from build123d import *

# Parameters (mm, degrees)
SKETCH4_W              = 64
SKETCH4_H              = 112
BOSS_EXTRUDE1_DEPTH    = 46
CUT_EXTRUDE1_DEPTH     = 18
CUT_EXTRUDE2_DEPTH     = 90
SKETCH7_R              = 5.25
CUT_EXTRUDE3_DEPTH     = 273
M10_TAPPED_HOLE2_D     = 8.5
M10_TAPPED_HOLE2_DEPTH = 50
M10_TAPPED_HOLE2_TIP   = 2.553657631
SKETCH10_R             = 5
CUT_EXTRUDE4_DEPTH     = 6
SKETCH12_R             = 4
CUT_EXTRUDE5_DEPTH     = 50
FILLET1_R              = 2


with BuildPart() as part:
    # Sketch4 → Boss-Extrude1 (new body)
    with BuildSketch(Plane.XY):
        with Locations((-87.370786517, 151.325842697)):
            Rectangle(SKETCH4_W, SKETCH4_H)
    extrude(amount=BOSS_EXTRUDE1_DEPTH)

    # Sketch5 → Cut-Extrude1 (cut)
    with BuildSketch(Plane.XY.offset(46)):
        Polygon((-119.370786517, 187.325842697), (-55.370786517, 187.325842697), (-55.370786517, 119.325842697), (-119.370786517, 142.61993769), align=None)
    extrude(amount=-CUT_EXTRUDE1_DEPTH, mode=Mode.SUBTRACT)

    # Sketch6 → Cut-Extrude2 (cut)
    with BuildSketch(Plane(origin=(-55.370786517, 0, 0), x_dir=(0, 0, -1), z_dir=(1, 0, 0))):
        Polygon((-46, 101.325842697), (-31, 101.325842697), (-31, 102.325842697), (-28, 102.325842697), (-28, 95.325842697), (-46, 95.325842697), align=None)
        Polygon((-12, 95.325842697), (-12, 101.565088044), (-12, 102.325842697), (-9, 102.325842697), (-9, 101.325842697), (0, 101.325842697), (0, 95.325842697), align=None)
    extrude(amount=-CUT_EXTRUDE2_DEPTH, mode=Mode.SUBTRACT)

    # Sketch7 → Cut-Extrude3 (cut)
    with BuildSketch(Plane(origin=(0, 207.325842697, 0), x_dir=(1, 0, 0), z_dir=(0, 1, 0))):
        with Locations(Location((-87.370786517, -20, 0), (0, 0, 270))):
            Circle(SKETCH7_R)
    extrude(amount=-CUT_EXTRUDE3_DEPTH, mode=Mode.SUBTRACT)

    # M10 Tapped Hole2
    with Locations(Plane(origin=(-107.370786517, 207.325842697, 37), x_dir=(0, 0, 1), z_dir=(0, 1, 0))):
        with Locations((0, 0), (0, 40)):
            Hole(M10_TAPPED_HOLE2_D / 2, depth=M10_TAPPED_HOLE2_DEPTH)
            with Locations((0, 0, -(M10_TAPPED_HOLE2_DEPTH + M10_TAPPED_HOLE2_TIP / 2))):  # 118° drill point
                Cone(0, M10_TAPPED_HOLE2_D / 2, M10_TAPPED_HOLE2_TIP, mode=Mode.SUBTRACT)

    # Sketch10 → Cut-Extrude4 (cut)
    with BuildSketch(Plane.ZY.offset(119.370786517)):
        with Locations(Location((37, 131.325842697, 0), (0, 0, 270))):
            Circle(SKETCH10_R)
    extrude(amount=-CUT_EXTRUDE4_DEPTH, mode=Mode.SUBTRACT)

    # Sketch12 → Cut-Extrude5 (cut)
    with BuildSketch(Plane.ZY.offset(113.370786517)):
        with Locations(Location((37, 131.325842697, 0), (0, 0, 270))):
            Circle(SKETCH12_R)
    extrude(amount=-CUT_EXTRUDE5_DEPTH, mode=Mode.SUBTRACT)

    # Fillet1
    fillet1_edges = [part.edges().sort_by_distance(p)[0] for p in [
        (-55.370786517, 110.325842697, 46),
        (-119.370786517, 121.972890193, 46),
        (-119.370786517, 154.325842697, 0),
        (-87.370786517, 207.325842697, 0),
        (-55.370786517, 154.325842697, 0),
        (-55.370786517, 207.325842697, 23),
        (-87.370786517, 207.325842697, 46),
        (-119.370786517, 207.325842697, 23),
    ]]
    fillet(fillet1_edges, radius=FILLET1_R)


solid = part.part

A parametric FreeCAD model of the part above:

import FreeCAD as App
import Part
import Sketcher

V = App.Vector
Q = App.Units.Quantity


def edges_at(feature, points):
    """Names of the edges that pass closest to the given points."""
    edges = feature.Shape.Edges
    near = lambda p: min(range(len(edges)), key=lambda i: edges[i].distToShape(Part.Vertex(*p))[0])
    return sorted({f"Edge{near(p) + 1}" for p in points})


def add_polygon(sketch, points):
    """Adds a closed chain of lines whose ends are joined by coincident constraints."""
    first, n = sketch.GeometryCount, len(points)
    for a, b in zip(points, points[1:] + points[:1]):
        sketch.addGeometry(Part.LineSegment(App.Vector(*a, 0), App.Vector(*b, 0)), False)
    for i in range(n):
        sketch.addConstraint(Sketcher.Constraint("Coincident", first + i, 2, first + (i + 1) % n, 1))

doc = App.newDocument("Part")
params = doc.addObject("Spreadsheet::Sheet", "Params")
for row, (alias, value) in enumerate([
    ("sketch1_width", "64 mm"),
    ("sketch1_height", "112 mm"),
    ("pad1_length", "46 mm"),
    ("sketch2_width", "64 mm"),
    ("sketch2_height", "68 mm"),
    ("pocket1_length", "18 mm"),
    ("sketch3_width", "6 mm"),
    ("sketch3_width2", "7 mm"),
    ("sketch3_height", "15 mm"),
    ("sketch3_height2", "18 mm"),
    ("sketch3_height3", "12 mm"),
    ("pocket2_length", "90 mm"),
    ("sketch4_diameter", "10.5 mm"),
    ("pocket3_length", "273 mm"),
    ("sketch5_diameter", "8.5 mm"),
    ("hole_diameter", "8.5 mm"),
    ("hole_depth", "50 mm"),
    ("sketch6_diameter", "10 mm"),
    ("pocket4_length", "6 mm"),
    ("sketch7_diameter", "8 mm"),
    ("pocket5_length", "50 mm"),
    ("fillet_radius", "2 mm"),
], start=1):
    params.set(f"A{row}", alias)
    params.set(f"B{row}", "=" + value)
    params.setAlias(f"B{row}", alias)

body = doc.addObject("PartDesign::Body", "Body")

sketch1 = body.newObject("Sketcher::SketchObject", "Sketch")
sketch1.AttachmentSupport = (doc.getObject("XY_Plane"), [""])
sketch1.MapMode = "FlatFace"
add_polygon(sketch1, [(-119.370787, 207.325843), (-119.370787, 95.325843), (-55.370787, 95.325843), (-55.370787, 207.325843)])
sketch1.addConstraint(Sketcher.Constraint("Vertical", 0))
sketch1.addConstraint(Sketcher.Constraint("Horizontal", 1))
sketch1.addConstraint(Sketcher.Constraint("Vertical", 2))
sketch1.addConstraint(Sketcher.Constraint("Horizontal", 3))
sketch1.addConstraint(Sketcher.Constraint("DistanceX", 1, 1, 1, 2, 64.0))
sketch1.addConstraint(Sketcher.Constraint("DistanceY", 0, 2, 0, 1, 112.0))
sketch1.addConstraint(Sketcher.Constraint("DistanceX", 0, 2, -1, 1, 119.370787))
sketch1.addConstraint(Sketcher.Constraint("DistanceY", -1, 1, 0, 2, 95.325843))
sketch1.setExpression("Constraints[8]", "Params.sketch1_width")
sketch1.setExpression("Constraints[9]", "Params.sketch1_height")
pad1 = body.newObject("PartDesign::Pad", "Pad")
pad1.Profile = sketch1
pad1.setExpression("Length", "Params.pad1_length")

sketch2 = body.newObject("Sketcher::SketchObject", "Sketch001")
sketch2.AttachmentSupport = (doc.getObject("XY_Plane"), [""])
sketch2.MapMode = "FlatFace"
sketch2.AttachmentOffset = App.Placement(V(0, 0, 46), App.Rotation())
add_polygon(sketch2, [(-55.370787, 187.325843), (-119.370787, 187.325843), (-119.370787, 142.619938), (-55.370787, 119.325843)])
sketch2.addConstraint(Sketcher.Constraint("Horizontal", 0))
sketch2.addConstraint(Sketcher.Constraint("Vertical", 1))
sketch2.addConstraint(Sketcher.Constraint("Vertical", 3))
sketch2.addConstraint(Sketcher.Constraint("DistanceX", 0, 2, 0, 1, 64.0))
sketch2.addConstraint(Sketcher.Constraint("DistanceY", 3, 1, 3, 2, 68.0))
sketch2.addConstraint(Sketcher.Constraint("Angle", 2, Q("-20 deg")))
sketch2.addConstraint(Sketcher.Constraint("DistanceX", 0, 2, -1, 1, 119.370787))
sketch2.addConstraint(Sketcher.Constraint("DistanceY", -1, 1, 0, 2, 187.325843))
sketch2.setExpression("Constraints[7]", "Params.sketch2_width")
sketch2.setExpression("Constraints[8]", "Params.sketch2_height")
pocket1 = body.newObject("PartDesign::Pocket", "Pocket")
pocket1.Profile = sketch2
pocket1.setExpression("Length", "Params.pocket1_length")

sketch3 = body.newObject("Sketcher::SketchObject", "Sketch002")
sketch3.AttachmentSupport = (doc.getObject("YZ_Plane"), [""])
sketch3.MapMode = "FlatFace"
sketch3.AttachmentOffset = App.Placement(V(0, 0, -55.370787), App.Rotation())
add_polygon(sketch3, [(101.325843, 31), (101.325843, 46), (95.325843, 46), (95.325843, 28), (102.325843, 28), (102.325843, 31)])
add_polygon(sketch3, [(102.325843, 12), (95.325843, 12), (95.325843, 0), (101.325843, 0), (101.325843, 9), (102.325843, 9)])
sketch3.addConstraint(Sketcher.Constraint("Vertical", 0))
sketch3.addConstraint(Sketcher.Constraint("Horizontal", 1))
sketch3.addConstraint(Sketcher.Constraint("Vertical", 2))
sketch3.addConstraint(Sketcher.Constraint("Horizontal", 3))
sketch3.addConstraint(Sketcher.Constraint("Vertical", 4))
sketch3.addConstraint(Sketcher.Constraint("Horizontal", 5))
sketch3.addConstraint(Sketcher.Constraint("Horizontal", 6))
sketch3.addConstraint(Sketcher.Constraint("Vertical", 7))
sketch3.addConstraint(Sketcher.Constraint("Horizontal", 8))
sketch3.addConstraint(Sketcher.Constraint("Vertical", 9))
sketch3.addConstraint(Sketcher.Constraint("Horizontal", 10))
sketch3.addConstraint(Sketcher.Constraint("Vertical", 11))
sketch3.addConstraint(Sketcher.Constraint("PointOnObject", 7, 2, -1))
sketch3.addConstraint(Sketcher.Constraint("Vertical", 2, 2, 6, 2))
sketch3.addConstraint(Sketcher.Constraint("Vertical", 5, 2, 8, 2))
sketch3.addConstraint(Sketcher.Constraint("Vertical", 4, 2, 10, 2))
sketch3.addConstraint(Sketcher.Constraint("Equal", 4, 11))
sketch3.addConstraint(Sketcher.Constraint("DistanceX", 1, 2, 1, 1, 6.0))
sketch3.addConstraint(Sketcher.Constraint("DistanceX", 3, 1, 3, 2, 7.0))
sketch3.addConstraint(Sketcher.Constraint("DistanceY", 0, 1, 0, 2, 15.0))
sketch3.addConstraint(Sketcher.Constraint("DistanceY", 2, 2, 2, 1, 18.0))
sketch3.addConstraint(Sketcher.Constraint("DistanceY", 7, 2, 7, 1, 12.0))
sketch3.addConstraint(Sketcher.Constraint("DistanceY", -1, 1, 0, 2, 46.0))
sketch3.addConstraint(Sketcher.Constraint("DistanceX", -1, 1, 0, 2, 101.325843))
sketch3.setExpression("Constraints[29]", "Params.sketch3_width")
sketch3.setExpression("Constraints[30]", "Params.sketch3_width2")
sketch3.setExpression("Constraints[31]", "Params.sketch3_height")
sketch3.setExpression("Constraints[32]", "Params.sketch3_height2")
sketch3.setExpression("Constraints[33]", "Params.sketch3_height3")
pocket2 = body.newObject("PartDesign::Pocket", "Pocket001")
pocket2.Profile = sketch3
pocket2.setExpression("Length", "Params.pocket2_length")

sketch4 = body.newObject("Sketcher::SketchObject", "Sketch003")
sketch4.AttachmentSupport = (doc.getObject("XZ_Plane"), [""])
sketch4.MapMode = "FlatFace"
sketch4.AttachmentOffset = App.Placement(V(0, 0, -207.325843), App.Rotation())
sketch4.addGeometry(Part.Circle(V(-87.370787, 20, 0), V(0, 0, 1), 5.25), False)
sketch4.addConstraint(Sketcher.Constraint("Diameter", 0, 10.5))
sketch4.addConstraint(Sketcher.Constraint("DistanceY", -1, 1, 0, 3, 20.0))
sketch4.addConstraint(Sketcher.Constraint("DistanceX", 0, 3, -1, 1, 87.370787))
sketch4.setExpression("Constraints[0]", "Params.sketch4_diameter")
pocket3 = body.newObject("PartDesign::Pocket", "Pocket002")
pocket3.Profile = sketch4
pocket3.setExpression("Length", "Params.pocket3_length")
pocket3.Reversed = True

sketch5 = body.newObject("Sketcher::SketchObject", "Sketch004")
sketch5.AttachmentSupport = (doc.getObject("XZ_Plane"), [""])
sketch5.MapMode = "FlatFace"
sketch5.AttachmentOffset = App.Placement(V(0, 0, -207.325843), App.Rotation())
sketch5.addGeometry(Part.Circle(V(-107.370787, 37, 0), V(0, 0, 1), 4.25), False)
sketch5.addGeometry(Part.Circle(V(-67.370787, 37, 0), V(0, 0, 1), 4.25), False)
sketch5.addConstraint(Sketcher.Constraint("Equal", 0, 1))
sketch5.addConstraint(Sketcher.Constraint("Horizontal", 0, 3, 1, 3))
sketch5.addConstraint(Sketcher.Constraint("Diameter", 0, 8.5))
sketch5.addConstraint(Sketcher.Constraint("DistanceY", -1, 1, 0, 3, 37.0))
sketch5.addConstraint(Sketcher.Constraint("DistanceX", 0, 3, 1, 3, 40.0))
sketch5.addConstraint(Sketcher.Constraint("DistanceX", 0, 3, -1, 1, 107.370787))
sketch5.setExpression("Constraints[2]", "Params.sketch5_diameter")
doc.recompute()
hole = body.newObject("PartDesign::Hole", "Hole")
hole.Profile = sketch5
hole.ThreadType = "None"
hole.setExpression("Diameter", "Params.hole_diameter")
hole.DepthType = "Dimension"
hole.setExpression("Depth", "Params.hole_depth")
hole.DrillPoint = "Angled"
hole.DrillPointAngle = 118
hole.Reversed = True

sketch6 = body.newObject("Sketcher::SketchObject", "Sketch005")
sketch6.AttachmentSupport = (doc.getObject("YZ_Plane"), [""])
sketch6.MapMode = "FlatFace"
sketch6.AttachmentOffset = App.Placement(V(0, 0, -119.370787), App.Rotation())
sketch6.addGeometry(Part.Circle(V(131.325843, 37, 0), V(0, 0, 1), 5), False)
sketch6.addConstraint(Sketcher.Constraint("Diameter", 0, 10.0))
sketch6.addConstraint(Sketcher.Constraint("DistanceY", -1, 1, 0, 3, 37.0))
sketch6.addConstraint(Sketcher.Constraint("DistanceX", -1, 1, 0, 3, 131.325843))
sketch6.setExpression("Constraints[0]", "Params.sketch6_diameter")
pocket4 = body.newObject("PartDesign::Pocket", "Pocket003")
pocket4.Profile = sketch6
pocket4.setExpression("Length", "Params.pocket4_length")
pocket4.Reversed = True

sketch7 = body.newObject("Sketcher::SketchObject", "Sketch006")
sketch7.AttachmentSupport = (doc.getObject("YZ_Plane"), [""])
sketch7.MapMode = "FlatFace"
sketch7.AttachmentOffset = App.Placement(V(0, 0, -113.370787), App.Rotation())
sketch7.addGeometry(Part.Circle(V(131.325843, 37, 0), V(0, 0, 1), 4), False)
sketch7.addConstraint(Sketcher.Constraint("Diameter", 0, 8.0))
sketch7.addConstraint(Sketcher.Constraint("DistanceY", -1, 1, 0, 3, 37.0))
sketch7.addConstraint(Sketcher.Constraint("DistanceX", -1, 1, 0, 3, 131.325843))
sketch7.setExpression("Constraints[0]", "Params.sketch7_diameter")
pocket5 = body.newObject("PartDesign::Pocket", "Pocket004")
pocket5.Profile = sketch7
pocket5.setExpression("Length", "Params.pocket5_length")
pocket5.Reversed = True
doc.recompute()

fillet = body.newObject("PartDesign::Fillet", "Fillet")
fillet.Base = (pocket5, edges_at(pocket5, [
    (-55.371, 110.326, 46),
    (-119.371, 121.973, 46),
    (-119.371, 154.326, 0),
    (-87.371, 207.326, 0),
    (-55.371, 154.326, 0),
    (-55.371, 207.326, 23),
    (-87.371, 207.326, 46),
    (-119.371, 207.326, 23),
]))
fillet.setExpression("Radius", "Params.fillet_radius")

doc.recompute()
